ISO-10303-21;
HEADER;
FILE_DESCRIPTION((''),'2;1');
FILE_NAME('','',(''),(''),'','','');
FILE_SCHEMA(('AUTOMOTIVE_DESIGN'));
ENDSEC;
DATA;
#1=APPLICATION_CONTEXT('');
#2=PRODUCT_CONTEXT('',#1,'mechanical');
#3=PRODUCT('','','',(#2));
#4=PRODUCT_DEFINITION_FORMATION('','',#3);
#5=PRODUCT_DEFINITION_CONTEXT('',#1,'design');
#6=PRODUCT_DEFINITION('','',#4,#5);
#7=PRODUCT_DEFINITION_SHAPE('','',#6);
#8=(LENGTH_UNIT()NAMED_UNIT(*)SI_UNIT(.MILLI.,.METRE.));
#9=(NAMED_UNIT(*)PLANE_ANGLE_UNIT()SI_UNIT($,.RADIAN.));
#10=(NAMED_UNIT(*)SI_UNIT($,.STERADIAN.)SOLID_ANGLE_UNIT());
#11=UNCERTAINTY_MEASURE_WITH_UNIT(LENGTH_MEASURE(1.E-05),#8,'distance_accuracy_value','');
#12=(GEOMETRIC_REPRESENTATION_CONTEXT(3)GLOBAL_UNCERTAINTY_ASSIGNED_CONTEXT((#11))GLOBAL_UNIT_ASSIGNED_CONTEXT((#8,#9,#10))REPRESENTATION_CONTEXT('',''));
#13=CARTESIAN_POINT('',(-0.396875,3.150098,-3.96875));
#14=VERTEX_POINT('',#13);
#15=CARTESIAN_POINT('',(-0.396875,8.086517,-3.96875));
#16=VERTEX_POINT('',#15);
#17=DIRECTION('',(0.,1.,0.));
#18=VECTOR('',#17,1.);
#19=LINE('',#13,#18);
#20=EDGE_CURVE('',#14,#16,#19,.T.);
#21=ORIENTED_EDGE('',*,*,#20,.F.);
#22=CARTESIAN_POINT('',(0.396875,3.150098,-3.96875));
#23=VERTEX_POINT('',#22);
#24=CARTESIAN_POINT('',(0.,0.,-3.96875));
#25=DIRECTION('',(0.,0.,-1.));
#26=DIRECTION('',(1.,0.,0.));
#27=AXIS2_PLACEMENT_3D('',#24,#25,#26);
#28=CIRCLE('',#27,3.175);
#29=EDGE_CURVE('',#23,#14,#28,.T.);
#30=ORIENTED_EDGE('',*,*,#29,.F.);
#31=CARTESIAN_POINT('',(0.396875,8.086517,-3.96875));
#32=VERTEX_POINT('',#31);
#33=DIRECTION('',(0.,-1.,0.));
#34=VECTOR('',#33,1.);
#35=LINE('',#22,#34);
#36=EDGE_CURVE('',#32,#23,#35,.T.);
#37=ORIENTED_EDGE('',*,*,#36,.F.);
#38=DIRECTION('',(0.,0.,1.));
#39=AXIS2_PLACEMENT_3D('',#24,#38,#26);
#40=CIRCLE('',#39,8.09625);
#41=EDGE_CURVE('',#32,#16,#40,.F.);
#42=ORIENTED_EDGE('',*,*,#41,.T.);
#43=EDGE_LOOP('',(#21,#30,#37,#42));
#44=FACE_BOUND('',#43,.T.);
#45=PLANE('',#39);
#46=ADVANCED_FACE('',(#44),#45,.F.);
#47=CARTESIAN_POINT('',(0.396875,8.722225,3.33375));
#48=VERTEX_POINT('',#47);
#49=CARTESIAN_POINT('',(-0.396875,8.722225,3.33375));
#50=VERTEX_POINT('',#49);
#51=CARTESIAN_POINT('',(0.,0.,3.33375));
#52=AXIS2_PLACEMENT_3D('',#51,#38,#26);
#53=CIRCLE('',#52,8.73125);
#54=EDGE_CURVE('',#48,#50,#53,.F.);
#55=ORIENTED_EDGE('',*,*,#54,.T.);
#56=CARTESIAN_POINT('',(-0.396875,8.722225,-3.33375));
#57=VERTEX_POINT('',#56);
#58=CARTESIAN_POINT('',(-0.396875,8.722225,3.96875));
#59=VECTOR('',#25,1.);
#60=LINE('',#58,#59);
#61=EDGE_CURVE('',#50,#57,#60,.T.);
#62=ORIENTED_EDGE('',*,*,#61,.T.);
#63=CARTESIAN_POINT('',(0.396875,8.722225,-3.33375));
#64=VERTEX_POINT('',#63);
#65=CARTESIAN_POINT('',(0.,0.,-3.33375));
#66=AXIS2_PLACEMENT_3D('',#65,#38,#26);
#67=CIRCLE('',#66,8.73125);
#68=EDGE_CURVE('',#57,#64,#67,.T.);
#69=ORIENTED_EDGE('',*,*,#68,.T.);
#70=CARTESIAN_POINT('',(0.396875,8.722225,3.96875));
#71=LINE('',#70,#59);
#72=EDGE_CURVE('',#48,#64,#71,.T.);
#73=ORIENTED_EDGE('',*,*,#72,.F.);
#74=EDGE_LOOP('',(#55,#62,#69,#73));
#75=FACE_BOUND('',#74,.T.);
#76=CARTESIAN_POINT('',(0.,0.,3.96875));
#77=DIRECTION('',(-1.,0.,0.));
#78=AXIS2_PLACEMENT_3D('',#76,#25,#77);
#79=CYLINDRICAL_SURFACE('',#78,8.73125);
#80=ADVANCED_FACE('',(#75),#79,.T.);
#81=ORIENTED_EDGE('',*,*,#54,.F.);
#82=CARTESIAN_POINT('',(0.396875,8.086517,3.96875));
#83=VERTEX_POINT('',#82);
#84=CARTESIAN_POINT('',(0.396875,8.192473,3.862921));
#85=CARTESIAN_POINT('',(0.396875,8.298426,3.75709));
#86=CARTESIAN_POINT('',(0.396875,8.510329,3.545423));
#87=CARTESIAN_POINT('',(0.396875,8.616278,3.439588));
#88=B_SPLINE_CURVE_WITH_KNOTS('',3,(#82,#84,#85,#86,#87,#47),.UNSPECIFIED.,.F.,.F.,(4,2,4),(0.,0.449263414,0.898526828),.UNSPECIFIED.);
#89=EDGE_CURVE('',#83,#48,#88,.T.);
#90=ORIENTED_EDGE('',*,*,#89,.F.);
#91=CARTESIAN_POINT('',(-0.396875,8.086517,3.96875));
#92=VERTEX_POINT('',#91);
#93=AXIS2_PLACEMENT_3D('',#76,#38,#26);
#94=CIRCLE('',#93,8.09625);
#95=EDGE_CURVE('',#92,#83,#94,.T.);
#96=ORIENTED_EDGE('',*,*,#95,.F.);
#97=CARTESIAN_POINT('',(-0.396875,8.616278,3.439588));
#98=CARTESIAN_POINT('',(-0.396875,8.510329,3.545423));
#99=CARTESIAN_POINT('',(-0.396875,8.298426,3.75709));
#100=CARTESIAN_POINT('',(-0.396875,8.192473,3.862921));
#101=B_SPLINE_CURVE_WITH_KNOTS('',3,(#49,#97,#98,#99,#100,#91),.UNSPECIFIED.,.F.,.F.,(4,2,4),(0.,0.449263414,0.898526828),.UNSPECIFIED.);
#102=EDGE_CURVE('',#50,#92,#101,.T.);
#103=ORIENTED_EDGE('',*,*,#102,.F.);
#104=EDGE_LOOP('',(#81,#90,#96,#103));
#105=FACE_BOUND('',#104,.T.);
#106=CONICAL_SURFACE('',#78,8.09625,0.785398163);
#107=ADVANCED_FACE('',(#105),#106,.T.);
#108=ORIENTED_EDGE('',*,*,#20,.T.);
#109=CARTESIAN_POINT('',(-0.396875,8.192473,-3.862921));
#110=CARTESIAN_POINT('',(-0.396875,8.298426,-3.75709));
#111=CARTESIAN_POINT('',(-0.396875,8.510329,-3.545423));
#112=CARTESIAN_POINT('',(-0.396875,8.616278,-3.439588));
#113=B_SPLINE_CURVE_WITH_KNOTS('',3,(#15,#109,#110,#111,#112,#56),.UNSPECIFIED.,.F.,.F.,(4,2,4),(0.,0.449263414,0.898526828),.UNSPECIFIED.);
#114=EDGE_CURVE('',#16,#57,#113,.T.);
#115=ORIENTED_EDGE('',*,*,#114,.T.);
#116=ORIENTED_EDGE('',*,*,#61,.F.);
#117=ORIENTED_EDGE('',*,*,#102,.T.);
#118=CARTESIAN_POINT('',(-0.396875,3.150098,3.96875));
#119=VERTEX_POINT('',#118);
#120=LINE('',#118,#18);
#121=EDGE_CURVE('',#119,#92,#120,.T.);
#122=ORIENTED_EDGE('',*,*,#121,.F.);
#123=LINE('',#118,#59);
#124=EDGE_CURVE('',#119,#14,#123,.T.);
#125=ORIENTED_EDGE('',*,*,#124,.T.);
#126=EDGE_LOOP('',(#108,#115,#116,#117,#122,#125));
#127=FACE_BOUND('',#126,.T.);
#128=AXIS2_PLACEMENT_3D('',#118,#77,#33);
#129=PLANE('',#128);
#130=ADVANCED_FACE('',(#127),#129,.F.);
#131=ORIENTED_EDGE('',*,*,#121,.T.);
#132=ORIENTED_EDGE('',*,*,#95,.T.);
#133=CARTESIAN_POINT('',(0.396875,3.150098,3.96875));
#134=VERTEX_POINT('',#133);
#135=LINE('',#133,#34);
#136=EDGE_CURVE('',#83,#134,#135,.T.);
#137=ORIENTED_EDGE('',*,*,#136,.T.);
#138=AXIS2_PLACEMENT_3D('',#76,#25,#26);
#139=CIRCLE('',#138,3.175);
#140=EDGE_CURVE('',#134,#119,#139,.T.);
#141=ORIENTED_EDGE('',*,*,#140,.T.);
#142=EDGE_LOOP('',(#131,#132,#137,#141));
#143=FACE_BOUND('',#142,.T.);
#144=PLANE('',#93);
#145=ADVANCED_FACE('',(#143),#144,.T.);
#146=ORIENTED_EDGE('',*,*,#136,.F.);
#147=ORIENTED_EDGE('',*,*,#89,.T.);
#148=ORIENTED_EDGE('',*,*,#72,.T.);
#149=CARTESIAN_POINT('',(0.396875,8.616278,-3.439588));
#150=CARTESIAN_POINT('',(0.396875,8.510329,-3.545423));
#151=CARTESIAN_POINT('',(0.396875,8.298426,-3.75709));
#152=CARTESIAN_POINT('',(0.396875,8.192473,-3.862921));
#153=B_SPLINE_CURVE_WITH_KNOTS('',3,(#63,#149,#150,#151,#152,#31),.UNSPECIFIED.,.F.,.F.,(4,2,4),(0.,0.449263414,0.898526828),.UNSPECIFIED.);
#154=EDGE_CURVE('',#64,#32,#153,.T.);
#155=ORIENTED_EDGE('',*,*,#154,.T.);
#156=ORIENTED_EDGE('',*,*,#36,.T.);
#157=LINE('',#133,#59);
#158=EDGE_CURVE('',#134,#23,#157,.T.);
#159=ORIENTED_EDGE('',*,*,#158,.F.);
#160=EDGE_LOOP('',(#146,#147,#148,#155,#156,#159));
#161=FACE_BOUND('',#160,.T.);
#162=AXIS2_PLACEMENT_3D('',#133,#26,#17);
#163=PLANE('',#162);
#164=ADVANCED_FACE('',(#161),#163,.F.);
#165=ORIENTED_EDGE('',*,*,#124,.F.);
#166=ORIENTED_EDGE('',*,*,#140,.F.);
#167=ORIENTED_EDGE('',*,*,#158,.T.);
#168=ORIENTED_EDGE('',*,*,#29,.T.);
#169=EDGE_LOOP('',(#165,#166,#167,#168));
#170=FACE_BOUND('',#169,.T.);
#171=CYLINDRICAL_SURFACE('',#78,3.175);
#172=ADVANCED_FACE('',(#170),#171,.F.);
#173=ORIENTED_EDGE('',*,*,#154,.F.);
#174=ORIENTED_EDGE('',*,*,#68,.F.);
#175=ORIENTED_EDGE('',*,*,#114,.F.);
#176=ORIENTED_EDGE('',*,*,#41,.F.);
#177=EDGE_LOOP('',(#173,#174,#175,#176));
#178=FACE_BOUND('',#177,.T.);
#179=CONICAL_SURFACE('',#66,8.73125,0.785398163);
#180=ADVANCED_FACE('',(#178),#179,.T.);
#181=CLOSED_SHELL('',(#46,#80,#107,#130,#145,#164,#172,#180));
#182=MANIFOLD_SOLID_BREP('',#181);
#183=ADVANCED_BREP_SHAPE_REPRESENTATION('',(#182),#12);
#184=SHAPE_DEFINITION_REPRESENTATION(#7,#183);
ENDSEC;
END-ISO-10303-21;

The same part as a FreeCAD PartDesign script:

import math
import FreeCAD as App
import Part
import Sketcher
from FreeCAD import Vector
Q = App.Units.Quantity


def edges_at(feature, points):
    """Names of the edges that pass closest to the given points."""
    edges = feature.Shape.Edges
    near = lambda p: min(range(len(edges)), key=lambda i: edges[i].distToShape(Part.Vertex(*p))[0])
    return sorted({f"Edge{near(p) + 1}" for p in points})

doc = App.newDocument("Part")
body = doc.addObject("PartDesign::Body", "Body")

sketch1 = doc.addObject("Sketcher::SketchObject", "Sketch")
body.addObject(sketch1)
sketch1.AttachmentSupport = (doc.XY_Plane, [""])
sketch1.MapMode = "FlatFace"
sketch1.addGeometry(Part.LineSegment(Vector(-0.396875, 3.150098, 0), Vector(-0.396875, 8.722225, 0)), False)
sketch1.addGeometry(Part.ArcOfCircle(Part.Circle(Vector(0, 0, 0), Vector(0, 0, 1), 8.73125), math.radians(92.605251), math.radians(447.394749)), False)
sketch1.addGeometry(Part.LineSegment(Vector(0.396875, 8.722225, 0), Vector(0.396875, 3.150098, 0)), False)
sketch1.addGeometry(Part.ArcOfCircle(Part.Circle(Vector(0, 0, 0), Vector(0, 0, 1), 3.175), math.radians(97.180756), math.radians(442.819244)), False)
sketch1.addConstraint(Sketcher.Constraint("Coincident", 0, 2, 1, 1))
sketch1.addConstraint(Sketcher.Constraint("Coincident", 1, 2, 2, 1))
sketch1.addConstraint(Sketcher.Constraint("Coincident", 2, 2, 3, 2))
sketch1.addConstraint(Sketcher.Constraint("Coincident", 3, 1, 0, 1))
sketch1.addConstraint(Sketcher.Constraint("Vertical", 0))
sketch1.addConstraint(Sketcher.Constraint("Vertical", 2))
sketch1.addConstraint(Sketcher.Constraint("Coincident", 1, 3, -1, 1))
sketch1.addConstraint(Sketcher.Constraint("Coincident", 3, 3, -1, 1))
sketch1.addConstraint(Sketcher.Constraint("Horizontal", 0, 2, 1, 2))
sketch1.addConstraint(Sketcher.Constraint("Radius", 1, Q("0.34375 in")))
sketch1.addConstraint(Sketcher.Constraint("Radius", 3, Q("0.125 in")))
sketch1.addConstraint(Sketcher.Constraint("DistanceX", 0, 2, -1, 1, Q("0.015625 in")))
pad1 = doc.addObject("PartDesign::Pad", "Pad")
body.addObject(pad1)
pad1.Profile = sketch1
pad1.Length = Q("0.3125 in")
pad1.Midplane = True
doc.recompute()

chamfer = doc.addObject("PartDesign::Chamfer", "Chamfer")
body.addObject(chamfer)
chamfer.Base = (pad1, edges_at(pad1, [(0, -8.731, 3.969), (0, -8.731, -3.969)]))
chamfer.Size = Q("0.025 in")

doc.recompute()
